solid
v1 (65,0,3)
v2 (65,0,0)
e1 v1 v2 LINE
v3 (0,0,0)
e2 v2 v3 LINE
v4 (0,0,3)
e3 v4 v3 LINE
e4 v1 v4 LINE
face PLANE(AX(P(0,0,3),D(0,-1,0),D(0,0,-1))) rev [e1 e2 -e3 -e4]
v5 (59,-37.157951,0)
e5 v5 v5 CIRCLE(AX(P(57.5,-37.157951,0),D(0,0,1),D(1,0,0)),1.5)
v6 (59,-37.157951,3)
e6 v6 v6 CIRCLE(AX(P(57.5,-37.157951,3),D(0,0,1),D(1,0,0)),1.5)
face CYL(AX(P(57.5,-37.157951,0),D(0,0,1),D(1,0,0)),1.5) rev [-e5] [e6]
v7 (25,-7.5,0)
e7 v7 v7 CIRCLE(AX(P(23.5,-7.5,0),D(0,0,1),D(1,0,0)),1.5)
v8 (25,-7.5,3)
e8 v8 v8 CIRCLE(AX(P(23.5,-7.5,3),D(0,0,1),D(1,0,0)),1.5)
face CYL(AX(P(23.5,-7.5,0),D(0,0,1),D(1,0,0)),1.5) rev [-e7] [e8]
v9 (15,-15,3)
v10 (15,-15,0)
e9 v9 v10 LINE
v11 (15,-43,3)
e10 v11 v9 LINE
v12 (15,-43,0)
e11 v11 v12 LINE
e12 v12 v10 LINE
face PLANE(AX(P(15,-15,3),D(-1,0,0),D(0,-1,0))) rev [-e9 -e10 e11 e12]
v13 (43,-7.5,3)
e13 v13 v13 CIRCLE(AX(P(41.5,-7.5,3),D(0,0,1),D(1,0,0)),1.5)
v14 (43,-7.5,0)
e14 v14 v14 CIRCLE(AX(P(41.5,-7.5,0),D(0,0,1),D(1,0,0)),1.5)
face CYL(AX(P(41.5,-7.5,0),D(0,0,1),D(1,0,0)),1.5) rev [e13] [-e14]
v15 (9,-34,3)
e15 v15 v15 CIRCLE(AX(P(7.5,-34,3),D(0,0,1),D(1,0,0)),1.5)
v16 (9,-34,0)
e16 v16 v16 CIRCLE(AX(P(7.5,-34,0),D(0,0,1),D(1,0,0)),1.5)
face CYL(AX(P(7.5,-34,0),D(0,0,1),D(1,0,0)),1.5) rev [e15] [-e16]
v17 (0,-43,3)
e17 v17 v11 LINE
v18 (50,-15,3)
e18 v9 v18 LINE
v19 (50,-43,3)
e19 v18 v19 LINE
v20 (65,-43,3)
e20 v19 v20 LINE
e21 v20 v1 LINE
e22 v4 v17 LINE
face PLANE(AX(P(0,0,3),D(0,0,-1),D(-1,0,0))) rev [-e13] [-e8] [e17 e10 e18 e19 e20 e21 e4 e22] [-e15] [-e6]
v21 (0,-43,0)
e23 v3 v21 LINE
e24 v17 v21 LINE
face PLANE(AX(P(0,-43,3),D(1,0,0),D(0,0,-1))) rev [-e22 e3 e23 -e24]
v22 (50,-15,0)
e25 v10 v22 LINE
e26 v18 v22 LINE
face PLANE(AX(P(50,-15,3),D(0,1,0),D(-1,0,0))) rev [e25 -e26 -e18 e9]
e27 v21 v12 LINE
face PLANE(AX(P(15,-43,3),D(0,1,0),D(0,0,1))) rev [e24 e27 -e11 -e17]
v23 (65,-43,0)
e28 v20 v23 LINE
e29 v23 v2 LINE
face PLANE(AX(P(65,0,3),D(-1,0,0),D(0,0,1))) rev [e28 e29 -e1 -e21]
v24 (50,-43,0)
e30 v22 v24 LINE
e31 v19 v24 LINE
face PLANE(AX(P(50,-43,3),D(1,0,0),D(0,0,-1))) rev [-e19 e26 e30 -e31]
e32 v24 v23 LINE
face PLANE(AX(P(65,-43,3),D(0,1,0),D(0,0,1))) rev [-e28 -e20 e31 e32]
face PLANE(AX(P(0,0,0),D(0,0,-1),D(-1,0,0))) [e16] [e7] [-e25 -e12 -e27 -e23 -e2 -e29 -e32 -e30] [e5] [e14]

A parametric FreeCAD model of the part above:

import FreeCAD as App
import Part
import Sketcher
from FreeCAD import Vector
Q = App.Units.Quantity


def add_polygon(sketch, points):
    """Adds a closed chain of lines whose ends are joined by coincident constraints."""
    first, n = sketch.GeometryCount, len(points)
    for a, b in zip(points, points[1:] + points[:1]):
        sketch.addGeometry(Part.LineSegment(App.Vector(*a, 0), App.Vector(*b, 0)), False)
    for i in range(n):
        sketch.addConstraint(Sketcher.Constraint("Coincident", first + i, 2, first + (i + 1) % n, 1))

doc = App.newDocument("Part")
body = doc.addObject("PartDesign::Body", "Body")

# Sketch on XY plane
sketch1 = body.newObject("Sketcher::SketchObject", "Sketch")
sketch1.AttachmentSupport = (doc.getObject("XY_Plane"), [""])
sketch1.MapMode = "FlatFace"
add_polygon(sketch1, [(65, 0), (0, 0), (0, -43), (15, -43), (15, -15), (50, -15), (50, -43), (65, -43)])  # lines 0-7
sketch1.addConstraint([
    Sketcher.Constraint("Horizontal", 0),
    Sketcher.Constraint("Vertical", 1),
    Sketcher.Constraint("Horizontal", 2),
    Sketcher.Constraint("Vertical", 3),
    Sketcher.Constraint("Horizontal", 4),
    Sketcher.Constraint("Vertical", 5),
    Sketcher.Constraint("Horizontal", 6),
    Sketcher.Constraint("Vertical", 7),
    Sketcher.Constraint("Coincident", 0, 2, -1, 1),
    Sketcher.Constraint("Horizontal", 2, 2, 5, 2),
    Sketcher.Constraint("Equal", 2, 6),
    Sketcher.Constraint("DistanceX", 0, 2, 0, 1, Q("65 mm")),
    Sketcher.Constraint("DistanceX", 2, 1, 2, 2, Q("15 mm")),
    Sketcher.Constraint("DistanceY", 1, 2, 1, 1, Q("43 mm")),
    Sketcher.Constraint("DistanceY", 3, 1, 3, 2, Q("28 mm")),
])
pad1 = body.newObject("PartDesign::Pad", "Pad")
pad1.Profile = sketch1
pad1.Length = 3

# Sketch on XY plane
sketch2 = body.newObject("Sketcher::SketchObject", "Sketch001")
sketch2.AttachmentSupport = (doc.getObject("XY_Plane"), [""])
sketch2.MapMode = "FlatFace"
sketch2.AttachmentOffset = App.Placement(Vector(0, 0, 3), App.Rotation())
sketch2.addGeometry([
    Part.Circle(Vector(57.5, -37.2, 0), Vector(0, 0, 1), 1.5),
    Part.Circle(Vector(7.5, -34, 0), Vector(0, 0, 1), 1.5),
    Part.Circle(Vector(23.5, -7.5, 0), Vector(0, 0, 1), 1.5),
    Part.Circle(Vector(41.5, -7.5, 0), Vector(0, 0, 1), 1.5),
], False)
sketch2.addConstraint([
    Sketcher.Constraint("Equal", 0, 1),
    Sketcher.Constraint("Equal", 1, 2),
    Sketcher.Constraint("Equal", 2, 3),
    Sketcher.Constraint("Horizontal", 2, 3, 3, 3),
    Sketcher.Constraint("Diameter", 0, Q("3 mm")),
    Sketcher.Constraint("DistanceY", 1, 3, -1, 1, Q("34 mm")),
    Sketcher.Constraint("DistanceX", 1, 3, 0, 3, Q("50 mm")),
    Sketcher.Constraint("DistanceX", 1, 3, 2, 3, Q("16 mm")),
    Sketcher.Constraint("DistanceX", 2, 3, 3, 3, Q("18 mm")),
    Sketcher.Constraint("DistanceX", -1, 1, 0, 3, Q("57.5 mm")),
    Sketcher.Constraint("DistanceY", 2, 3, -1, 1, Q("7.5 mm")),
    Sketcher.Constraint("DistanceY", 0, 3, -1, 1, Q("37.157951 mm")),
])
pocket1 = body.newObject("PartDesign::Pocket", "Pocket")
pocket1.Profile = sketch2
pocket1.Length = 3

doc.recompute()
